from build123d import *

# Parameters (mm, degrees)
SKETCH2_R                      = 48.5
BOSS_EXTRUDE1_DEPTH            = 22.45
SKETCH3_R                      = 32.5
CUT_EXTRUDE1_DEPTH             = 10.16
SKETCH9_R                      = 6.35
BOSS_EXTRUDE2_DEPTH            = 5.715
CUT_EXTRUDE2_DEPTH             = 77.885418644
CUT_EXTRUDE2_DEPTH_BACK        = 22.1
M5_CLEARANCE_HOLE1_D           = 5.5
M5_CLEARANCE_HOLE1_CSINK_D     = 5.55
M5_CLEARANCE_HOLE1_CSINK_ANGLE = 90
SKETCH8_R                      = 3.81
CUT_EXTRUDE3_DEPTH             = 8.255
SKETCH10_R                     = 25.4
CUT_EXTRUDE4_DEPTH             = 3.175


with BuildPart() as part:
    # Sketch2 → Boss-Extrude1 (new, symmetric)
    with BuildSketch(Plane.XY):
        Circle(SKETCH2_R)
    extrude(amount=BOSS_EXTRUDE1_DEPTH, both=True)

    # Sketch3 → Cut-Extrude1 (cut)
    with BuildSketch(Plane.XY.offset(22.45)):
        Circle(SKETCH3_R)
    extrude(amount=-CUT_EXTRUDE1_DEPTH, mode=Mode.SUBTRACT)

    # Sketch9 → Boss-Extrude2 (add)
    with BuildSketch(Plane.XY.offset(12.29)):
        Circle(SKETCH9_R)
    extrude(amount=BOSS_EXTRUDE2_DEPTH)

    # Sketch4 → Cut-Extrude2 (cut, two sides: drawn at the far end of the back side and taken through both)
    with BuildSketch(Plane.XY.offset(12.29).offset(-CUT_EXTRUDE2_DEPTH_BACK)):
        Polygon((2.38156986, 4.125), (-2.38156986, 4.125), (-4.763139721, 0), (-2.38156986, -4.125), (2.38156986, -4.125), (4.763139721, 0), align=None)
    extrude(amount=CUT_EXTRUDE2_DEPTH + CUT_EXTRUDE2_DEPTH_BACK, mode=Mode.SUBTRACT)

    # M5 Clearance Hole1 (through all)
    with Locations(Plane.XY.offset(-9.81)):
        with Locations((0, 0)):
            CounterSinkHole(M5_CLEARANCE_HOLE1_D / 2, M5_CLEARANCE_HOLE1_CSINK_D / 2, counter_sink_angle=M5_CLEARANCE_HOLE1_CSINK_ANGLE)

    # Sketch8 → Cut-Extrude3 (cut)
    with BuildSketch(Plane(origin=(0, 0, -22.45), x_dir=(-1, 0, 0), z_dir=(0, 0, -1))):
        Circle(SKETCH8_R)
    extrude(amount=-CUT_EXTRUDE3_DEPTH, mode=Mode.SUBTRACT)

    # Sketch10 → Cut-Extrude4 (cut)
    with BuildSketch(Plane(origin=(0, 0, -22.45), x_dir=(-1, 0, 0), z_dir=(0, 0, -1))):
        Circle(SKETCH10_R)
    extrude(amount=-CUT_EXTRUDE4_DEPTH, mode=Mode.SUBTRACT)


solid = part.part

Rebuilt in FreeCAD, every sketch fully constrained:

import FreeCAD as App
import Part
import Sketcher
from FreeCAD import Vector
Q = App.Units.Quantity


def add_polygon(sketch, points):
    """Adds a closed chain of lines whose ends are joined by coincident constraints."""
    first, n = sketch.GeometryCount, len(points)
    for a, b in zip(points, points[1:] + points[:1]):
        sketch.addGeometry(Part.LineSegment(App.Vector(*a, 0), App.Vector(*b, 0)), False)
    for i in range(n):
        sketch.addConstraint(Sketcher.Constraint("Coincident", first + i, 2, first + (i + 1) % n, 1))

doc = App.newDocument("Part")
params = doc.addObject("Spreadsheet::Sheet", "Params")
for row, (alias, value) in enumerate([
    ("pad1_length", "44.9 mm"),
    ("pocket1_length", "0.4 in"),
    ("sketch3_diameter", "0.5 in"),
    ("pad2_length", "0.225 in"),
    ("pocket2_length", "77.885419 mm"),
    ("pocket2_length2", "22.1 mm"),
    ("hole_diameter", "5.5 mm"),
    ("hole_csink_diameter", "5.55 mm"),
    ("sketch6_diameter", "0.3 in"),
    ("pocket3_length", "0.325 in"),
    ("sketch7_diameter", "2 in"),
    ("pocket4_length", "0.125 in"),
], start=1):
    params.set(f"A{row}", alias)
    params.set(f"B{row}", "=" + value)
    params.setAlias(f"B{row}", alias)

body = doc.addObject("PartDesign::Body", "Body")

# Sketch on XY plane
sketch1 = doc.addObject("Sketcher::SketchObject", "Sketch")
body.addObject(sketch1)
sketch1.AttachmentSupport = (doc.XY_Plane, [""])
sketch1.MapMode = "FlatFace"
sketch1.addGeometry(Part.Circle(Vector(0, 0, 0), Vector(0, 0, 1), 48), False)
sketch1.addConstraint([
    Sketcher.Constraint("Coincident", 0, 3, -1, 1),
    Sketcher.Constraint("Diameter", 0, Q("97 mm")),
])
pad1 = doc.addObject("PartDesign::Pad", "Pad")
body.addObject(pad1)
pad1.Profile = sketch1
pad1.setExpression("Length", "Params.pad1_length")
pad1.Midplane = True

# Sketch on XY plane
sketch2 = doc.addObject("Sketcher::SketchObject", "Sketch001")
body.addObject(sketch2)
sketch2.AttachmentSupport = (doc.XY_Plane, [""])
sketch2.MapMode = "FlatFace"
sketch2.AttachmentOffset = App.Placement(Vector(0, 0, 22.45), App.Rotation())
sketch2.addGeometry(Part.Circle(Vector(0, 0, 0), Vector(0, 0, 1), 32), False)
sketch2.addConstraint([
    Sketcher.Constraint("Coincident", 0, 3, -1, 1),
    Sketcher.Constraint("Diameter", 0, Q("65 mm")),
])
pocket1 = doc.addObject("PartDesign::Pocket", "Pocket")
body.addObject(pocket1)
pocket1.Profile = sketch2
pocket1.setExpression("Length", "Params.pocket1_length")

# Sketch on XY plane
sketch3 = doc.addObject("Sketcher::SketchObject", "Sketch002")
body.addObject(sketch3)
sketch3.AttachmentSupport = (doc.XY_Plane, [""])
sketch3.MapMode = "FlatFace"
sketch3.AttachmentOffset = App.Placement(Vector(0, 0, 12.29), App.Rotation())
sketch3.addGeometry(Part.Circle(Vector(0, 0, 0), Vector(0, 0, 1), 6), False)
sketch3.addConstraint([
    Sketcher.Constraint("Coincident", 0, 3, -1, 1),
    Sketcher.Constraint("Diameter", 0, Q("0.5 in")),
])
sketch3.setExpression("Constraints[1]", "Params.sketch3_diameter")
pad2 = doc.addObject("PartDesign::Pad", "Pad001")
body.addObject(pad2)
pad2.Profile = sketch3
pad2.setExpression("Length", "Params.pad2_length")

# Sketch on XY plane
sketch4 = doc.addObject("Sketcher::SketchObject", "Sketch003")
body.addObject(sketch4)
sketch4.AttachmentSupport = (doc.XY_Plane, [""])
sketch4.MapMode = "FlatFace"
sketch4.AttachmentOffset = App.Placement(Vector(0, 0, 12.29), App.Rotation())
add_polygon(sketch4, [(2.4, 4.1), (-2.4, 4.1), (-4.8, 0), (-2.4, -4.1), (2.4, -4.1), (4.8, 0)])  # lines 0-5
sketch4.addConstraint([
    Sketcher.Constraint("Horizontal", 0),
    Sketcher.Constraint("Horizontal", 3),
    Sketcher.Constraint("Symmetric", 0, 2, 3, 2, -1, 1),
    Sketcher.Constraint("Symmetric", 1, 2, 4, 2, -1, 1),
    Sketcher.Constraint("PointOnObject", 1, 2, -1),
    Sketcher.Constraint("Parallel", 2, 5),
    Sketcher.Constraint("Vertical", 0, 2, 2, 2),
    Sketcher.Constraint("Angle", 1, Q("-120 deg")),
    Sketcher.Constraint("DistanceX", 0, 2, 0, 1, Q("4.76314 mm")),
    Sketcher.Constraint("DistanceY", -1, 1, 0, 2, Q("4.125 mm")),
])
pocket2 = doc.addObject("PartDesign::Pocket", "Pocket001")
body.addObject(pocket2)
pocket2.Profile = sketch4
pocket2.Type = "TwoLengths"
pocket2.setExpression("Length", "Params.pocket2_length")
pocket2.setExpression("Length2", "Params.pocket2_length2")
pocket2.Reversed = True

# Sketch on XY plane
sketch5 = doc.addObject("Sketcher::SketchObject", "Sketch004")
body.addObject(sketch5)
sketch5.AttachmentSupport = (doc.XY_Plane, [""])
sketch5.MapMode = "FlatFace"
sketch5.AttachmentOffset = App.Placement(Vector(0, 0, -9.81), App.Rotation())
sketch5.addGeometry(Part.Circle(Vector(0, 0, 0), Vector(0, 0, 1), 2.8), False)
sketch5.addConstraint([
    Sketcher.Constraint("Coincident", 0, 3, -1, 1),
    Sketcher.Constraint("Diameter", 0, Q("5.5 mm")),
])
doc.recompute()
hole = doc.addObject("PartDesign::Hole", "Hole")
body.addObject(hole)
hole.Profile = sketch5
hole.ThreadType = "None"
hole.setExpression("Diameter", "Params.hole_diameter")
hole.DepthType = "ThroughAll"
hole.HoleCutType = "Countersink"
hole.setExpression("HoleCutDiameter", "Params.hole_csink_diameter")
hole.HoleCutCountersinkAngle = 90

# Sketch on XY plane
sketch6 = doc.addObject("Sketcher::SketchObject", "Sketch005")
body.addObject(sketch6)
sketch6.AttachmentSupport = (doc.XY_Plane, [""])
sketch6.MapMode = "FlatFace"
sketch6.AttachmentOffset = App.Placement(Vector(0, 0, -22.45), App.Rotation())
sketch6.addGeometry(Part.Circle(Vector(0, 0, 0), Vector(0, 0, 1), 3.8), False)
sketch6.addConstraint([
    Sketcher.Constraint("Coincident", 0, 3, -1, 1),
    Sketcher.Constraint("Diameter", 0, Q("0.3 in")),
])
sketch6.setExpression("Constraints[1]", "Params.sketch6_diameter")
pocket3 = doc.addObject("PartDesign::Pocket", "Pocket002")
body.addObject(pocket3)
pocket3.Profile = sketch6
pocket3.setExpression("Length", "Params.pocket3_length")
pocket3.Reversed = True

# Sketch on XY plane
sketch7 = doc.addObject("Sketcher::SketchObject", "Sketch006")
body.addObject(sketch7)
sketch7.AttachmentSupport = (doc.XY_Plane, [""])
sketch7.MapMode = "FlatFace"
sketch7.AttachmentOffset = App.Placement(Vector(0, 0, -22.45), App.Rotation())
sketch7.addGeometry(Part.Circle(Vector(0, 0, 0), Vector(0, 0, 1), 25), False)
sketch7.addConstraint([
    Sketcher.Constraint("Coincident", 0, 3, -1, 1),
    Sketcher.Constraint("Diameter", 0, Q("2 in")),
])
sketch7.setExpression("Constraints[1]", "Params.sketch7_diameter")
pocket4 = doc.addObject("PartDesign::Pocket", "Pocket003")
body.addObject(pocket4)
pocket4.Profile = sketch7
pocket4.setExpression("Length", "Params.pocket4_length")
pocket4.Reversed = True

doc.recompute()
